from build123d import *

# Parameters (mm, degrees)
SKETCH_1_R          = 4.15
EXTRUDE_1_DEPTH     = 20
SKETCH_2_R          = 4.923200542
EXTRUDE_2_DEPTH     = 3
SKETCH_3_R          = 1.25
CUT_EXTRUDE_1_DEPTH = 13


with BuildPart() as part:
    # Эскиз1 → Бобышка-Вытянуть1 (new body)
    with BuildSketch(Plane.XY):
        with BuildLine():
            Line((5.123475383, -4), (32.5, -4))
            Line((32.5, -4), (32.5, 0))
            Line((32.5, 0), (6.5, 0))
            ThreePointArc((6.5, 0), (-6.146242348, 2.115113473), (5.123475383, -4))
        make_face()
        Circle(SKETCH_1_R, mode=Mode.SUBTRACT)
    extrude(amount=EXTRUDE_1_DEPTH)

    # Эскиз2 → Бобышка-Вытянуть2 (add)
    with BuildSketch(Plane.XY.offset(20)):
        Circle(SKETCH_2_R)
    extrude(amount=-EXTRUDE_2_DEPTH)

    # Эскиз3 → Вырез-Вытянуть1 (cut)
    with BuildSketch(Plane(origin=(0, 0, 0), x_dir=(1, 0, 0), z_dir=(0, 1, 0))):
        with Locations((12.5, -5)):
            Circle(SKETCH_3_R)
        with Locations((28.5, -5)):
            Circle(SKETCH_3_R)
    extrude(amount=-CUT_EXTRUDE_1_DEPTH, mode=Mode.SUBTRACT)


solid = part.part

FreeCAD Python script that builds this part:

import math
import FreeCAD as App
import Part
import Sketcher

V = App.Vector

doc = App.newDocument("Part")
params = doc.addObject("Spreadsheet::Sheet", "Params")
for row, (alias, value) in enumerate([
    ("sketch1_diameter", "8.3 mm"),
    ("sketch1_radius", "6.5 mm"),
    ("sketch1_width", "26 mm"),
    ("sketch1_height", "4 mm"),
    ("pad1_length", "20 mm"),
    ("pad2_length", "3 mm"),
    ("sketch3_diameter", "2.5 mm"),
    ("pocket1_length", "13 mm"),
], start=1):
    params.set(f"A{row}", alias)
    params.set(f"B{row}", "=" + value)
    params.setAlias(f"B{row}", alias)

body = doc.addObject("PartDesign::Body", "Body")

sketch1 = body.newObject("Sketcher::SketchObject", "Sketch")
sketch1.AttachmentSupport = (doc.getObject("XY_Plane"), [""])
sketch1.MapMode = "FlatFace"
sketch1.addGeometry([
    Part.LineSegment(V(5.1, -4, 0), V(32.5, -4, 0)),
    Part.LineSegment(V(32.5, -4, 0), V(32.5, 0, 0)),
    Part.LineSegment(V(32.5, 0, 0), V(6.5, 0, 0)),
    Part.ArcOfCircle(Part.Circle(V(0, 0, 0), V(0, 0, 1), 6.5), math.radians(0), math.radians(322)),
    Part.Circle(V(0, 0, 0), V(0, 0, 1), 4.2),
], False)
sketch1.addConstraint([
    Sketcher.Constraint("Coincident", 0, 2, 1, 1),
    Sketcher.Constraint("Coincident", 1, 2, 2, 1),
    Sketcher.Constraint("Coincident", 2, 2, 3, 1),
    Sketcher.Constraint("Coincident", 3, 2, 0, 1),
    Sketcher.Constraint("Horizontal", 0),
    Sketcher.Constraint("Vertical", 1),
    Sketcher.Constraint("Horizontal", 2),
    Sketcher.Constraint("Coincident", 3, 3, -1, 1),
    Sketcher.Constraint("Coincident", 4, 3, -1, 1),
    Sketcher.Constraint("PointOnObject", 1, 2, -1),
    Sketcher.Constraint("Diameter", 4, 8.3),
    Sketcher.Constraint("Radius", 3, 6.5),
    Sketcher.Constraint("DistanceX", 2, 2, 2, 1, 26.0),
    Sketcher.Constraint("DistanceY", 1, 1, 1, 2, 4.0),
])
sketch1.setExpression("Constraints[10]", "Params.sketch1_diameter")
sketch1.setExpression("Constraints[11]", "Params.sketch1_radius")
sketch1.setExpression("Constraints[12]", "Params.sketch1_width")
sketch1.setExpression("Constraints[13]", "Params.sketch1_height")
pad1 = body.newObject("PartDesign::Pad", "Pad")
pad1.Profile = sketch1
pad1.setExpression("Length", "Params.pad1_length")

sketch2 = body.newObject("Sketcher::SketchObject", "Sketch001")
sketch2.AttachmentSupport = (doc.getObject("XY_Plane"), [""])
sketch2.MapMode = "FlatFace"
sketch2.AttachmentOffset = App.Placement(V(0, 0, 20), App.Rotation())
sketch2.addGeometry(Part.Circle(V(0, 0, 0), V(0, 0, 1), 4.9), False)
sketch2.addConstraint([
    Sketcher.Constraint("Coincident", 0, 3, -1, 1),
    Sketcher.Constraint("Diameter", 0, 9.846401),
])
pad2 = body.newObject("PartDesign::Pad", "Pad001")
pad2.Profile = sketch2
pad2.setExpression("Length", "Params.pad2_length")
pad2.Reversed = True

sketch3 = body.newObject("Sketcher::SketchObject", "Sketch002")
sketch3.AttachmentSupport = (doc.getObject("XZ_Plane"), [""])
sketch3.MapMode = "FlatFace"
sketch3.addGeometry([
    Part.Circle(V(12.5, 5, 0), V(0, 0, 1), 1.2),
    Part.Circle(V(28.5, 5, 0), V(0, 0, 1), 1.2),
], False)
sketch3.addConstraint([
    Sketcher.Constraint("Equal", 0, 1),
    Sketcher.Constraint("Horizontal", 0, 3, 1, 3),
    Sketcher.Constraint("Diameter", 0, 2.5),
    Sketcher.Constraint("DistanceY", -1, 1, 0, 3, 5.0),
    Sketcher.Constraint("DistanceX", 0, 3, 1, 3, 16.0),
    Sketcher.Constraint("DistanceX", -1, 1, 0, 3, 12.5),
])
sketch3.setExpression("Constraints[2]", "Params.sketch3_diameter")
pocket1 = body.newObject("PartDesign::Pocket", "Pocket")
pocket1.Profile = sketch3
pocket1.setExpression("Length", "Params.pocket1_length")
pocket1.Reversed = True

doc.recompute()
